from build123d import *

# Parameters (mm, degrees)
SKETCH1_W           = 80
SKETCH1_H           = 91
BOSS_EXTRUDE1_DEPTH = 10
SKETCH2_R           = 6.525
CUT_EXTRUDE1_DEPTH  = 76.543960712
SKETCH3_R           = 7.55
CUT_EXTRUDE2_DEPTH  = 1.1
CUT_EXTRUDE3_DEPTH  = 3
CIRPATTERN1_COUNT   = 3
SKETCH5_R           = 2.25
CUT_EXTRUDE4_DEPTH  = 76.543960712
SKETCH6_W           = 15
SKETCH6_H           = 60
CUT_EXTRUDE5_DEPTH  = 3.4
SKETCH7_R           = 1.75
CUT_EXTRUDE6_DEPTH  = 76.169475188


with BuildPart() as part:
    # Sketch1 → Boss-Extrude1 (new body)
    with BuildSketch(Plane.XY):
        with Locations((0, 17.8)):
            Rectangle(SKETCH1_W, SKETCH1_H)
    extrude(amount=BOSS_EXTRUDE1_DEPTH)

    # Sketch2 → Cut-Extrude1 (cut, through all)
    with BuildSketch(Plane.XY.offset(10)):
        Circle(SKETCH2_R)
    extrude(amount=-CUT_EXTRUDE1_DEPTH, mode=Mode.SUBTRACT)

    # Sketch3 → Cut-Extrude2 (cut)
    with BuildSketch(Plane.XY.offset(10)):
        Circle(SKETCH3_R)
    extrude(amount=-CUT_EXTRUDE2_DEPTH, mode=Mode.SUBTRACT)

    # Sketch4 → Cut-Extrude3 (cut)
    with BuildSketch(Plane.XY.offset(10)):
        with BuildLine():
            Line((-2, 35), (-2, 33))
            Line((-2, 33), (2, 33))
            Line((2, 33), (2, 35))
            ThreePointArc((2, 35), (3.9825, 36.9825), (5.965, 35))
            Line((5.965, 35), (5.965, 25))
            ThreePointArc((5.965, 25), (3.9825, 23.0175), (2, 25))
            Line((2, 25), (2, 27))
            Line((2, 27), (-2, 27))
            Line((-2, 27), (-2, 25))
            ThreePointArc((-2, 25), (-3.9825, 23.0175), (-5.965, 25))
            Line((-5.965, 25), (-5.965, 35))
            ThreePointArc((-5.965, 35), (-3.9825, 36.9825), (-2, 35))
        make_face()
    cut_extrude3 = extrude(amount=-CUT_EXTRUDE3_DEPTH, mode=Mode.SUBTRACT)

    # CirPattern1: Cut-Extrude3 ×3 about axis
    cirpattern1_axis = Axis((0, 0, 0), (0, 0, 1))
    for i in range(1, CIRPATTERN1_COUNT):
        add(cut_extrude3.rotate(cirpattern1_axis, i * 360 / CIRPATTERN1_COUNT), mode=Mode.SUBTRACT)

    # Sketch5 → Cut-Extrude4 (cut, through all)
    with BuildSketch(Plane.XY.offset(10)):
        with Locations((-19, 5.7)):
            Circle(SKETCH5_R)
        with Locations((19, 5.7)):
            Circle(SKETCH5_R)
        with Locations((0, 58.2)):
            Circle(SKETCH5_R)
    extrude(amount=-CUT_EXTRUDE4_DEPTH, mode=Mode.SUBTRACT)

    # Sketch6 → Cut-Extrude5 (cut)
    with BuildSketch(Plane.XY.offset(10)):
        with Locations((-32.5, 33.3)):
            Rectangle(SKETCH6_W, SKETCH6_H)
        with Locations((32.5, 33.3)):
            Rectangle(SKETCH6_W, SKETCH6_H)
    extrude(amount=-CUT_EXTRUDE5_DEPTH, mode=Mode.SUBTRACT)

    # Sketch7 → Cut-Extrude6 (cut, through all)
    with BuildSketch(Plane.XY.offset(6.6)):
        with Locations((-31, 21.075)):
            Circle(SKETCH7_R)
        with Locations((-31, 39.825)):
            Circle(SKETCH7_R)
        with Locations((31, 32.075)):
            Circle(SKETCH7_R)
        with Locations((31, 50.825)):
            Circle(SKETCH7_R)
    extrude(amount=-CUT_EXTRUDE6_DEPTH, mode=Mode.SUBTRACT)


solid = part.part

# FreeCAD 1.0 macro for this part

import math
import FreeCAD as App
import Part
import Sketcher

V = App.Vector
Q = App.Units.Quantity

doc = App.newDocument("Part")
body = doc.addObject("PartDesign::Body", "Body")

# Sketch on XY plane
sketch1 = body.newObject("Sketcher::SketchObject", "Sketch")
sketch1.AttachmentSupport = (doc.getObject("XY_Plane"), [""])
sketch1.MapMode = "FlatFace"
sketch1.addGeometry(Part.LineSegment(V(-40, 63, 0), V(-40, -28, 0)), False)
sketch1.addGeometry(Part.LineSegment(V(-40, -28, 0), V(40, -28, 0)), False)
sketch1.addGeometry(Part.LineSegment(V(40, -28, 0), V(40, 63, 0)), False)
sketch1.addGeometry(Part.LineSegment(V(40, 63, 0), V(-40, 63, 0)), False)
sketch1.addConstraint(Sketcher.Constraint("Coincident", 0, 2, 1, 1))
sketch1.addConstraint(Sketcher.Constraint("Coincident", 1, 2, 2, 1))
sketch1.addConstraint(Sketcher.Constraint("Coincident", 2, 2, 3, 1))
sketch1.addConstraint(Sketcher.Constraint("Coincident", 3, 2, 0, 1))
sketch1.addConstraint(Sketcher.Constraint("Vertical", 0))
sketch1.addConstraint(Sketcher.Constraint("Horizontal", 1))
sketch1.addConstraint(Sketcher.Constraint("Vertical", 2))
sketch1.addConstraint(Sketcher.Constraint("Horizontal", 3))
sketch1.addConstraint(Sketcher.Constraint("DistanceX", 1, 1, 1, 2, Q("80 mm")))
sketch1.addConstraint(Sketcher.Constraint("DistanceY", 0, 2, 0, 1, Q("91 mm")))
sketch1.addConstraint(Sketcher.Constraint("DistanceX", 0, 2, -1, 1, Q("40 mm")))
sketch1.addConstraint(Sketcher.Constraint("DistanceY", 0, 2, -1, 1, Q("27.7 mm")))
pad1 = body.newObject("PartDesign::Pad", "Pad")
pad1.Profile = sketch1
pad1.Length = 10

# Sketch on XY plane
sketch2 = body.newObject("Sketcher::SketchObject", "Sketch001")
sketch2.AttachmentSupport = (doc.getObject("XY_Plane"), [""])
sketch2.MapMode = "FlatFace"
sketch2.AttachmentOffset = App.Placement(V(0, 0, 10), App.Rotation())
sketch2.addGeometry(Part.Circle(V(0, 0, 0), V(0, 0, 1), 7), False)
sketch2.addConstraint(Sketcher.Constraint("Coincident", 0, 3, -1, 1))
sketch2.addConstraint(Sketcher.Constraint("Diameter", 0, Q("13.05 mm")))
pocket1 = body.newObject("PartDesign::Pocket", "Pocket")
pocket1.Profile = sketch2
pocket1.Type = "ThroughAll"

# Sketch on XY plane
sketch3 = body.newObject("Sketcher::SketchObject", "Sketch002")
sketch3.AttachmentSupport = (doc.getObject("XY_Plane"), [""])
sketch3.MapMode = "FlatFace"
sketch3.AttachmentOffset = App.Placement(V(0, 0, 10), App.Rotation())
sketch3.addGeometry(Part.Circle(V(0, 0, 0), V(0, 0, 1), 8), False)
sketch3.addConstraint(Sketcher.Constraint("Coincident", 0, 3, -1, 1))
sketch3.addConstraint(Sketcher.Constraint("Diameter", 0, Q("15.1 mm")))
pocket2 = body.newObject("PartDesign::Pocket", "Pocket001")
pocket2.Profile = sketch3
pocket2.Length = 1.1

# Sketch on XY plane
sketch4 = body.newObject("Sketcher::SketchObject", "Sketch003")
sketch4.AttachmentSupport = (doc.getObject("XY_Plane"), [""])
sketch4.MapMode = "FlatFace"
sketch4.AttachmentOffset = App.Placement(V(0, 0, 10), App.Rotation())
sketch4.addGeometry(Part.LineSegment(V(-2, 33, 0), V(-2, 35, 0)), False)
sketch4.addGeometry(Part.ArcOfCircle(Part.Circle(V(-4, 35, 0), V(0, 0, 1), 2), math.radians(0), math.radians(180)), False)
sketch4.addGeometry(Part.LineSegment(V(-6, 35, 0), V(-6, 25, 0)), False)
sketch4.addGeometry(Part.ArcOfCircle(Part.Circle(V(-4, 25, 0), V(0, 0, 1), 2), math.radians(180), math.radians(360)), False)
sketch4.addGeometry(Part.LineSegment(V(-2, 25, 0), V(-2, 27, 0)), False)
sketch4.addGeometry(Part.LineSegment(V(-2, 27, 0), V(2, 27, 0)), False)
sketch4.addGeometry(Part.LineSegment(V(2, 27, 0), V(2, 25, 0)), False)
sketch4.addGeometry(Part.ArcOfCircle(Part.Circle(V(4, 25, 0), V(0, 0, 1), 2), math.radians(180), math.radians(360)), False)
sketch4.addGeometry(Part.LineSegment(V(6, 25, 0), V(6, 35, 0)), False)
sketch4.addGeometry(Part.ArcOfCircle(Part.Circle(V(4, 35, 0), V(0, 0, 1), 2), math.radians(0), math.radians(180)), False)
sketch4.addGeometry(Part.LineSegment(V(2, 35, 0), V(2, 33, 0)), False)
sketch4.addGeometry(Part.LineSegment(V(2, 33, 0), V(-2, 33, 0)), False)
sketch4.addConstraint(Sketcher.Constraint("Tangent", 0, 2, 1, 1))
sketch4.addConstraint(Sketcher.Constraint("Tangent", 1, 2, 2, 1))
sketch4.addConstraint(Sketcher.Constraint("Tangent", 2, 2, 3, 1))
sketch4.addConstraint(Sketcher.Constraint("Tangent", 3, 2, 4, 1))
sketch4.addConstraint(Sketcher.Constraint("Coincident", 4, 2, 5, 1))
sketch4.addConstraint(Sketcher.Constraint("Coincident", 5, 2, 6, 1))
sketch4.addConstraint(Sketcher.Constraint("Tangent", 6, 2, 7, 1))
sketch4.addConstraint(Sketcher.Constraint("Tangent", 7, 2, 8, 1))
sketch4.addConstraint(Sketcher.Constraint("Tangent", 8, 2, 9, 1))
sketch4.addConstraint(Sketcher.Constraint("Tangent", 9, 2, 10, 1))
sketch4.addConstraint(Sketcher.Constraint("Coincident", 10, 2, 11, 1))
sketch4.addConstraint(Sketcher.Constraint("Coincident", 11, 2, 0, 1))
sketch4.addConstraint(Sketcher.Constraint("Vertical", 0))
sketch4.addConstraint(Sketcher.Constraint("Vertical", 2))
sketch4.addConstraint(Sketcher.Constraint("Vertical", 4))
sketch4.addConstraint(Sketcher.Constraint("Horizontal", 5))
sketch4.addConstraint(Sketcher.Constraint("Vertical", 6))
sketch4.addConstraint(Sketcher.Constraint("Vertical", 8))
sketch4.addConstraint(Sketcher.Constraint("Vertical", 10))
sketch4.addConstraint(Sketcher.Constraint("Horizontal", 11))
sketch4.addConstraint(Sketcher.Constraint("Equal", 1, 3))
sketch4.addConstraint(Sketcher.Constraint("Equal", 3, 7))
sketch4.addConstraint(Sketcher.Constraint("Equal", 7, 9))
sketch4.addConstraint(Sketcher.Constraint("Symmetric", 3, 3, 7, 3, -2))
sketch4.addConstraint(Sketcher.Constraint("Horizontal", 1, 3, 9, 3))
sketch4.addConstraint(Sketcher.Constraint("Equal", 0, 4))
sketch4.addConstraint(Sketcher.Constraint("DistanceX", 5, 1, 5, 2, Q("4 mm")))
sketch4.addConstraint(Sketcher.Constraint("DistanceY", 0, 1, 0, 2, Q("2 mm")))
sketch4.addConstraint(Sketcher.Constraint("DistanceY", 2, 2, 2, 1, Q("10 mm")))
sketch4.addConstraint(Sketcher.Constraint("DistanceY", -1, 1, 1, 3, Q("35 mm")))
sketch4.addConstraint(Sketcher.Constraint("Radius", 1, Q("1.9825 mm")))
pocket3 = body.newObject("PartDesign::Pocket", "Pocket002")
pocket3.Profile = sketch4
pocket3.Length = 3
doc.recompute()

polarpattern = body.newObject("PartDesign::PolarPattern", "PolarPattern")
polarpattern.Originals = [pocket3]
polarpattern.Axis = (doc.getObject("Z_Axis"), [""])
polarpattern.Angle = 360
polarpattern.Occurrences = 3
body.Tip = polarpattern

# Sketch on XY plane
sketch5 = body.newObject("Sketcher::SketchObject", "Sketch004")
sketch5.AttachmentSupport = (doc.getObject("XY_Plane"), [""])
sketch5.MapMode = "FlatFace"
sketch5.AttachmentOffset = App.Placement(V(0, 0, 10), App.Rotation())
sketch5.addGeometry(Part.Circle(V(-19, 5.7, 0), V(0, 0, 1), 2.2), False)
sketch5.addGeometry(Part.Circle(V(19, 5.7, 0), V(0, 0, 1), 2.2), False)
sketch5.addGeometry(Part.Circle(V(0, 58.2, 0), V(0, 0, 1), 2.2), False)
sketch5.addConstraint(Sketcher.Constraint("Equal", 0, 1))
sketch5.addConstraint(Sketcher.Constraint("Equal", 1, 2))
sketch5.addConstraint(Sketcher.Constraint("Symmetric", 0, 3, 1, 3, -2))
sketch5.addConstraint(Sketcher.Constraint("PointOnObject", 2, 3, -2))
sketch5.addConstraint(Sketcher.Constraint("Diameter", 0, Q("4.5 mm")))
sketch5.addConstraint(Sketcher.Constraint("DistanceX", 0, 3, -1, 1, Q("19 mm")))
sketch5.addConstraint(Sketcher.Constraint("DistanceY", -1, 1, 0, 3, Q("5.7 mm")))
sketch5.addConstraint(Sketcher.Constraint("DistanceY", -1, 1, 2, 3, Q("58.2 mm")))
pocket4 = body.newObject("PartDesign::Pocket", "Pocket003")
pocket4.Profile = sketch5
pocket4.Type = "ThroughAll"

# Sketch on XY plane
sketch6 = body.newObject("Sketcher::SketchObject", "Sketch005")
sketch6.AttachmentSupport = (doc.getObject("XY_Plane"), [""])
sketch6.MapMode = "FlatFace"
sketch6.AttachmentOffset = App.Placement(V(0, 0, 10), App.Rotation())
sketch6.addGeometry(Part.LineSegment(V(-40, 63, 0), V(-40, 3, 0)), False)
sketch6.addGeometry(Part.LineSegment(V(-40, 3, 0), V(-25, 3, 0)), False)
sketch6.addGeometry(Part.LineSegment(V(-25, 3, 0), V(-25, 63, 0)), False)
sketch6.addGeometry(Part.LineSegment(V(-25, 63, 0), V(-40, 63, 0)), False)
sketch6.addGeometry(Part.LineSegment(V(25, 63, 0), V(25, 3, 0)), False)
sketch6.addGeometry(Part.LineSegment(V(25, 3, 0), V(40, 3, 0)), False)
sketch6.addGeometry(Part.LineSegment(V(40, 3, 0), V(40, 63, 0)), False)
sketch6.addGeometry(Part.LineSegment(V(40, 63, 0), V(25, 63, 0)), False)
sketch6.addConstraint(Sketcher.Constraint("Coincident", 0, 2, 1, 1))
sketch6.addConstraint(Sketcher.Constraint("Coincident", 1, 2, 2, 1))
sketch6.addConstraint(Sketcher.Constraint("Coincident", 2, 2, 3, 1))
sketch6.addConstraint(Sketcher.Constraint("Coincident", 3, 2, 0, 1))
sketch6.addConstraint(Sketcher.Constraint("Coincident", 4, 2, 5, 1))
sketch6.addConstraint(Sketcher.Constraint("Coincident", 5, 2, 6, 1))
sketch6.addConstraint(Sketcher.Constraint("Coincident", 6, 2, 7, 1))
sketch6.addConstraint(Sketcher.Constraint("Coincident", 7, 2, 4, 1))
sketch6.addConstraint(Sketcher.Constraint("Vertical", 0))
sketch6.addConstraint(Sketcher.Constraint("Horizontal", 1))
sketch6.addConstraint(Sketcher.Constraint("Vertical", 2))
sketch6.addConstraint(Sketcher.Constraint("Horizontal", 3))
sketch6.addConstraint(Sketcher.Constraint("Vertical", 4))
sketch6.addConstraint(Sketcher.Constraint("Horizontal", 5))
sketch6.addConstraint(Sketcher.Constraint("Vertical", 6))
sketch6.addConstraint(Sketcher.Constraint("Horizontal", 7))
sketch6.addConstraint(Sketcher.Constraint("Symmetric", 1, 2, 4, 2, -2))
sketch6.addConstraint(Sketcher.Constraint("Symmetric", 3, 2, 6, 2, -2))
sketch6.addConstraint(Sketcher.Constraint("DistanceX", 1, 1, 1, 2, Q("15 mm")))
sketch6.addConstraint(Sketcher.Constraint("DistanceY", 0, 2, 0, 1, Q("60 mm")))
sketch6.addConstraint(Sketcher.Constraint("DistanceX", 0, 2, -1, 1, Q("40 mm")))
sketch6.addConstraint(Sketcher.Constraint("DistanceY", -1, 1, 0, 2, Q("3.3 mm")))
pocket5 = body.newObject("PartDesign::Pocket", "Pocket004")
pocket5.Profile = sketch6
pocket5.Length = 3.4

# Sketch on XY plane
sketch7 = body.newObject("Sketcher::SketchObject", "Sketch006")
sketch7.AttachmentSupport = (doc.getObject("XY_Plane"), [""])
sketch7.MapMode = "FlatFace"
sketch7.AttachmentOffset = App.Placement(V(0, 0, 6.6), App.Rotation())
sketch7.addGeometry(Part.Circle(V(-31, 21.1, 0), V(0, 0, 1), 1.8), False)
sketch7.addGeometry(Part.Circle(V(-31, 39.8, 0), V(0, 0, 1), 1.8), False)
sketch7.addGeometry(Part.Circle(V(31, 32.1, 0), V(0, 0, 1), 1.8), False)
sketch7.addGeometry(Part.Circle(V(31, 50.8, 0), V(0, 0, 1), 1.8), False)
sketch7.addConstraint(Sketcher.Constraint("Equal", 0, 1))
sketch7.addConstraint(Sketcher.Constraint("Equal", 1, 2))
sketch7.addConstraint(Sketcher.Constraint("Equal", 2, 3))
sketch7.addConstraint(Sketcher.Constraint("Vertical", 0, 3, 1, 3))
sketch7.addConstraint(Sketcher.Constraint("Vertical", 2, 3, 3, 3))
sketch7.addConstraint(Sketcher.Constraint("Diameter", 0, Q("3.5 mm")))
sketch7.addConstraint(Sketcher.Constraint("DistanceX", 0, 3, -1, 1, Q("31 mm")))
sketch7.addConstraint(Sketcher.Constraint("DistanceX", -1, 1, 2, 3, Q("31 mm")))
sketch7.addConstraint(Sketcher.Constraint("DistanceY", 0, 3, 2, 3, Q("11 mm")))
sketch7.addConstraint(Sketcher.Constraint("DistanceY", 1, 3, 3, 3, Q("11 mm")))
sketch7.addConstraint(Sketcher.Constraint("DistanceY", 0, 3, 1, 3, Q("18.75 mm")))
sketch7.addConstraint(Sketcher.Constraint("DistanceY", -1, 1, 0, 3, Q("21.075 mm")))
pocket6 = body.newObject("PartDesign::Pocket", "Pocket005")
pocket6.Profile = sketch7
pocket6.Type = "ThroughAll"

doc.recompute()
